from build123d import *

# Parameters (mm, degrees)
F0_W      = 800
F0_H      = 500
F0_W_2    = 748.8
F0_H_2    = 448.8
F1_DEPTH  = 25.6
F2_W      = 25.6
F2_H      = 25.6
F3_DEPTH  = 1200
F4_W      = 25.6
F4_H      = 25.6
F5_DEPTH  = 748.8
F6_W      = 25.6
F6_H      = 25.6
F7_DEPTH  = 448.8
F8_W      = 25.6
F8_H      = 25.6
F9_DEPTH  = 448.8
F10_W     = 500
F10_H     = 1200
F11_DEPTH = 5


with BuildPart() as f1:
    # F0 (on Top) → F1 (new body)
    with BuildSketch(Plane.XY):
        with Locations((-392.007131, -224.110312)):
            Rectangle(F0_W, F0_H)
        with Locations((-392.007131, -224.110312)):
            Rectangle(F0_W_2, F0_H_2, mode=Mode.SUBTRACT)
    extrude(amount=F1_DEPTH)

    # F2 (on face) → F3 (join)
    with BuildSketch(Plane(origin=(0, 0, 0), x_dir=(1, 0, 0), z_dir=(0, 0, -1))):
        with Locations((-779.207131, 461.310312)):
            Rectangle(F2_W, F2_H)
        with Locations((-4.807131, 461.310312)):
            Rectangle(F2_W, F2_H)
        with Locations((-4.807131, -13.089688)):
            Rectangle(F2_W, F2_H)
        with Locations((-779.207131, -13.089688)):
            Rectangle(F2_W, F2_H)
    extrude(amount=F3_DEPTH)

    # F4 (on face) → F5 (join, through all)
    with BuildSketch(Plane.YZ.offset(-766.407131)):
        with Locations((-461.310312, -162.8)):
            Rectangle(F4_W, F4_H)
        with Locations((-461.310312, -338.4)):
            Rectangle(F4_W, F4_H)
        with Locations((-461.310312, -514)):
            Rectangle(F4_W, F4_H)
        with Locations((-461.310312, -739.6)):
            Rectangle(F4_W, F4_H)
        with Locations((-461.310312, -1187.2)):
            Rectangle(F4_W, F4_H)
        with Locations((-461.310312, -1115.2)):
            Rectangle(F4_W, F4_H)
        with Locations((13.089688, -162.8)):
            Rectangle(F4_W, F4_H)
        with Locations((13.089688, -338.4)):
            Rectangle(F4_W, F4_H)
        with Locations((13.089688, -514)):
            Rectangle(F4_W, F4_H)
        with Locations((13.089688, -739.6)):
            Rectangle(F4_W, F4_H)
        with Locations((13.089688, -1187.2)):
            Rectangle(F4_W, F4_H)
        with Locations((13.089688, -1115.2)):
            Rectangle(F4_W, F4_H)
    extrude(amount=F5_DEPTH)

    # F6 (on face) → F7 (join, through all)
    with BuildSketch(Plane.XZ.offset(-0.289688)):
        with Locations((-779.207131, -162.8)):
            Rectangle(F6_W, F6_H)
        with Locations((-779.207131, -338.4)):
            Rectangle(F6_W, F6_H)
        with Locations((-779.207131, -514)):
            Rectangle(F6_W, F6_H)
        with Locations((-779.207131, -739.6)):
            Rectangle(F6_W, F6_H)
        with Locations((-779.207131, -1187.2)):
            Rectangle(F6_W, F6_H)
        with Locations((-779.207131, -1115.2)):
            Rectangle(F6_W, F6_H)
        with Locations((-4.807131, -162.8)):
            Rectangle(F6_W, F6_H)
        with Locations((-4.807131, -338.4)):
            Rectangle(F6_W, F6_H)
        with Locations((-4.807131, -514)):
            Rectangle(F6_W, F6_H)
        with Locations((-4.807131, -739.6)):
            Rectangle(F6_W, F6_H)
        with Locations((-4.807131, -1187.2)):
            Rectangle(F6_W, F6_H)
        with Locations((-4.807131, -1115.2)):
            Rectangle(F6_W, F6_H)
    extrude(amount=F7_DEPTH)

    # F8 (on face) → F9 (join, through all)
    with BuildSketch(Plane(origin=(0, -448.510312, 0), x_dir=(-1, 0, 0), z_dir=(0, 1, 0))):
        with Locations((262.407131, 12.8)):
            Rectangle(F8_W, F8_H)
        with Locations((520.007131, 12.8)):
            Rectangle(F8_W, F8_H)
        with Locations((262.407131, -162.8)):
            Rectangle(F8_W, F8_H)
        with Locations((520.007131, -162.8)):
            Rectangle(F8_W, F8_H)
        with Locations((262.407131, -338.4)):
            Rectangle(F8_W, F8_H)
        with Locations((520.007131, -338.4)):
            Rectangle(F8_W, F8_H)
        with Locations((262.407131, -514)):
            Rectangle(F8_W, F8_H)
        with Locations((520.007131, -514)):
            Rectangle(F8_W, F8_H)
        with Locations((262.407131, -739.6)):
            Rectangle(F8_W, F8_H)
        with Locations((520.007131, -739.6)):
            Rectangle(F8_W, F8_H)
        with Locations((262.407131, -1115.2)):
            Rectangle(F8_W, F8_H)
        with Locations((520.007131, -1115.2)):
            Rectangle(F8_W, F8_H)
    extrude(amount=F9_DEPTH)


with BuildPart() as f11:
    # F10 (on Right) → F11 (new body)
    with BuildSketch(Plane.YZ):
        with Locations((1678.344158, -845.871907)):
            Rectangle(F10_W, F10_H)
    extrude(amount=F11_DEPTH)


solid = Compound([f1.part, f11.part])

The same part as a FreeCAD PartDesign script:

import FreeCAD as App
import Part
import Sketcher
from FreeCAD import Vector
Q = App.Units.Quantity


def add_polygon(sketch, points):
    """Adds a closed chain of lines whose ends are joined by coincident constraints."""
    first, n = sketch.GeometryCount, len(points)
    for a, b in zip(points, points[1:] + points[:1]):
        sketch.addGeometry(Part.LineSegment(App.Vector(*a, 0), App.Vector(*b, 0)), False)
    for i in range(n):
        sketch.addConstraint(Sketcher.Constraint("Coincident", first + i, 2, first + (i + 1) % n, 1))

doc = App.newDocument("Part")
body = doc.addObject("PartDesign::Body", "Body")

# Sketch on XY plane
sketch1 = body.newObject("Sketcher::SketchObject", "Sketch")
sketch1.AttachmentSupport = (doc.getObject("XY_Plane"), [""])
sketch1.MapMode = "FlatFace"
add_polygon(sketch1, [(-792, 26), (-792, -474), (8, -474), (8, 26)])  # lines 0-3
add_polygon(sketch1, [(-18, -449), (-766, -449), (-766, 0), (-18, 0)])  # lines 4-7
sketch1.addConstraint(Sketcher.Constraint("Vertical", 0))
sketch1.addConstraint(Sketcher.Constraint("Horizontal", 1))
sketch1.addConstraint(Sketcher.Constraint("Vertical", 2))
sketch1.addConstraint(Sketcher.Constraint("Horizontal", 3))
sketch1.addConstraint(Sketcher.Constraint("Horizontal", 4))
sketch1.addConstraint(Sketcher.Constraint("Vertical", 5))
sketch1.addConstraint(Sketcher.Constraint("Horizontal", 6))
sketch1.addConstraint(Sketcher.Constraint("Vertical", 7))
sketch1.addConstraint(Sketcher.Constraint("DistanceX", 1, 1, 1, 2, Q("800 mm")))
sketch1.addConstraint(Sketcher.Constraint("DistanceY", 0, 2, 0, 1, Q("500 mm")))
sketch1.addConstraint(Sketcher.Constraint("DistanceX", 4, 2, 4, 1, Q("748.8 mm")))
sketch1.addConstraint(Sketcher.Constraint("DistanceY", 5, 1, 5, 2, Q("448.8 mm")))
sketch1.addConstraint(Sketcher.Constraint("DistanceX", 0, 2, 4, 2, Q("25.6 mm")))
sketch1.addConstraint(Sketcher.Constraint("DistanceY", 0, 2, 4, 2, Q("25.6 mm")))
sketch1.addConstraint(Sketcher.Constraint("DistanceX", 0, 2, -1, 1, Q("792.007131 mm")))
sketch1.addConstraint(Sketcher.Constraint("DistanceY", 0, 2, -1, 1, Q("474.110312 mm")))
pad1 = body.newObject("PartDesign::Pad", "Pad")
pad1.Profile = sketch1
pad1.Length = 25.6

# Sketch on XY plane
sketch2 = body.newObject("Sketcher::SketchObject", "Sketch001")
sketch2.AttachmentSupport = (doc.getObject("XY_Plane"), [""])
sketch2.MapMode = "FlatFace"
add_polygon(sketch2, [(-792, -474), (-792, -449), (-766, -449), (-766, -474)])  # lines 0-3
add_polygon(sketch2, [(-18, -474), (-18, -449), (8, -449), (8, -474)])  # lines 4-7
add_polygon(sketch2, [(-18, 0), (-18, 26), (8, 26), (8, 0)])  # lines 8-11
add_polygon(sketch2, [(-792, 0), (-792, 26), (-766, 26), (-766, 0)])  # lines 12-15
sketch2.addConstraint(Sketcher.Constraint("Vertical", 0))
sketch2.addConstraint(Sketcher.Constraint("Horizontal", 1))
sketch2.addConstraint(Sketcher.Constraint("Vertical", 2))
sketch2.addConstraint(Sketcher.Constraint("Horizontal", 3))
sketch2.addConstraint(Sketcher.Constraint("Vertical", 4))
sketch2.addConstraint(Sketcher.Constraint("Horizontal", 5))
sketch2.addConstraint(Sketcher.Constraint("Vertical", 6))
sketch2.addConstraint(Sketcher.Constraint("Horizontal", 7))
sketch2.addConstraint(Sketcher.Constraint("Vertical", 8))
sketch2.addConstraint(Sketcher.Constraint("Horizontal", 9))
sketch2.addConstraint(Sketcher.Constraint("Vertical", 10))
sketch2.addConstraint(Sketcher.Constraint("Horizontal", 11))
sketch2.addConstraint(Sketcher.Constraint("Vertical", 12))
sketch2.addConstraint(Sketcher.Constraint("Horizontal", 13))
sketch2.addConstraint(Sketcher.Constraint("Vertical", 14))
sketch2.addConstraint(Sketcher.Constraint("Horizontal", 15))
sketch2.addConstraint(Sketcher.Constraint("Horizontal", 1, 2, 4, 2))
sketch2.addConstraint(Sketcher.Constraint("Horizontal", 3, 2, 6, 2))
sketch2.addConstraint(Sketcher.Constraint("Horizontal", 9, 2, 12, 2))
sketch2.addConstraint(Sketcher.Constraint("Horizontal", 11, 2, 14, 2))
sketch2.addConstraint(Sketcher.Constraint("Vertical", 7, 2, 8, 2))
sketch2.addConstraint(Sketcher.Constraint("Vertical", 6, 2, 9, 2))
sketch2.addConstraint(Sketcher.Constraint("Vertical", 3, 2, 12, 2))
sketch2.addConstraint(Sketcher.Constraint("Vertical", 2, 2, 13, 2))
sketch2.addConstraint(Sketcher.Constraint("Equal", 3, 5))
sketch2.addConstraint(Sketcher.Constraint("Equal", 15, 0))
sketch2.addConstraint(Sketcher.Constraint("Equal", 6, 8))
sketch2.addConstraint(Sketcher.Constraint("DistanceX", 1, 1, 1, 2, Q("25.6 mm")))
sketch2.addConstraint(Sketcher.Constraint("DistanceX", 0, 2, 5, 2, Q("800 mm")))
sketch2.addConstraint(Sketcher.Constraint("DistanceY", 7, 2, 8, 2, Q("500 mm")))
sketch2.addConstraint(Sketcher.Constraint("DistanceX", 0, 2, -1, 1, Q("792.007131 mm")))
sketch2.addConstraint(Sketcher.Constraint("DistanceY", 0, 2, -1, 1, Q("448.510312 mm")))
pad2 = body.newObject("PartDesign::Pad", "Pad001")
pad2.Profile = sketch2
pad2.Length = 1200
pad2.Reversed = True

# Sketch on YZ plane
sketch3 = body.newObject("Sketcher::SketchObject", "Sketch002")
sketch3.AttachmentSupport = (doc.getObject("YZ_Plane"), [""])
sketch3.MapMode = "FlatFace"
sketch3.AttachmentOffset = App.Placement(Vector(0, 0, -766.407131), App.Rotation())
add_polygon(sketch3, [(-474, -150), (-474, -176), (-449, -176), (-449, -150)])  # lines 0-3
add_polygon(sketch3, [(-474, -326), (-474, -351), (-449, -351), (-449, -326)])  # lines 4-7
add_polygon(sketch3, [(-474, -501), (-474, -527), (-449, -527), (-449, -501)])  # lines 8-11
add_polygon(sketch3, [(-474, -727), (-474, -752), (-449, -752), (-449, -727)])  # lines 12-15
add_polygon(sketch3, [(-474, -1174), (-474, -1200), (-449, -1200), (-449, -1174)])  # lines 16-19
add_polygon(sketch3, [(-474, -1102), (-474, -1128), (-449, -1128), (-449, -1102)])  # lines 20-23
add_polygon(sketch3, [(0, -150), (0, -176), (26, -176), (26, -150)])  # lines 24-27
add_polygon(sketch3, [(0, -326), (0, -351), (26, -351), (26, -326)])  # lines 28-31
add_polygon(sketch3, [(0, -501), (0, -527), (26, -527), (26, -501)])  # lines 32-35
add_polygon(sketch3, [(0, -727), (0, -752), (26, -752), (26, -727)])  # lines 36-39
add_polygon(sketch3, [(0, -1174), (0, -1200), (26, -1200), (26, -1174)])  # lines 40-43
add_polygon(sketch3, [(0, -1102), (0, -1128), (26, -1128), (26, -1102)])  # lines 44-47
sketch3.addConstraint(Sketcher.Constraint("Vertical", 0))
sketch3.addConstraint(Sketcher.Constraint("Horizontal", 1))
sketch3.addConstraint(Sketcher.Constraint("Vertical", 2))
sketch3.addConstraint(Sketcher.Constraint("Horizontal", 3))
sketch3.addConstraint(Sketcher.Constraint("Vertical", 4))
sketch3.addConstraint(Sketcher.Constraint("Horizontal", 5))
sketch3.addConstraint(Sketcher.Constraint("Vertical", 6))
sketch3.addConstraint(Sketcher.Constraint("Horizontal", 7))
sketch3.addConstraint(Sketcher.Constraint("Vertical", 8))
sketch3.addConstraint(Sketcher.Constraint("Horizontal", 9))
sketch3.addConstraint(Sketcher.Constraint("Vertical", 10))
sketch3.addConstraint(Sketcher.Constraint("Horizontal", 11))
sketch3.addConstraint(Sketcher.Constraint("Vertical", 12))
sketch3.addConstraint(Sketcher.Constraint("Horizontal", 13))
sketch3.addConstraint(Sketcher.Constraint("Vertical", 14))
sketch3.addConstraint(Sketcher.Constraint("Horizontal", 15))
sketch3.addConstraint(Sketcher.Constraint("Vertical", 16))
sketch3.addConstraint(Sketcher.Constraint("Horizontal", 17))
sketch3.addConstraint(Sketcher.Constraint("Vertical", 18))
sketch3.addConstraint(Sketcher.Constraint("Horizontal", 19))
sketch3.addConstraint(Sketcher.Constraint("Vertical", 20))
sketch3.addConstraint(Sketcher.Constraint("Horizontal", 21))
sketch3.addConstraint(Sketcher.Constraint("Vertical", 22))
sketch3.addConstraint(Sketcher.Constraint("Horizontal", 23))
sketch3.addConstraint(Sketcher.Constraint("Vertical", 24))
sketch3.addConstraint(Sketcher.Constraint("Horizontal", 25))
sketch3.addConstraint(Sketcher.Constraint("Vertical", 26))
sketch3.addConstraint(Sketcher.Constraint("Horizontal", 27))
sketch3.addConstraint(Sketcher.Constraint("Vertical", 28))
sketch3.addConstraint(Sketcher.Constraint("Horizontal", 29))
sketch3.addConstraint(Sketcher.Constraint("Vertical", 30))
sketch3.addConstraint(Sketcher.Constraint("Horizontal", 31))
sketch3.addConstraint(Sketcher.Constraint("Vertical", 32))
sketch3.addConstraint(Sketcher.Constraint("Horizontal", 33))
sketch3.addConstraint(Sketcher.Constraint("Vertical", 34))
sketch3.addConstraint(Sketcher.Constraint("Horizontal", 35))
sketch3.addConstraint(Sketcher.Constraint("Vertical", 36))
sketch3.addConstraint(Sketcher.Constraint("Horizontal", 37))
sketch3.addConstraint(Sketcher.Constraint("Vertical", 38))
sketch3.addConstraint(Sketcher.Constraint("Horizontal", 39))
sketch3.addConstraint(Sketcher.Constraint("Vertical", 40))
sketch3.addConstraint(Sketcher.Constraint("Horizontal", 41))
sketch3.addConstraint(Sketcher.Constraint("Vertical", 42))
sketch3.addConstraint(Sketcher.Constraint("Horizontal", 43))
sketch3.addConstraint(Sketcher.Constraint("Vertical", 44))
sketch3.addConstraint(Sketcher.Constraint("Horizontal", 45))
sketch3.addConstraint(Sketcher.Constraint("Vertical", 46))
sketch3.addConstraint(Sketcher.Constraint("Horizontal", 47))
sketch3.addConstraint(Sketcher.Constraint("Horizontal", 1, 2, 24, 2))
sketch3.addConstraint(Sketcher.Constraint("Horizontal", 3, 2, 26, 2))
sketch3.addConstraint(Sketcher.Constraint("Horizontal", 5, 2, 28, 2))
sketch3.addConstraint(Sketcher.Constraint("Horizontal", 7, 2, 30, 2))
sketch3.addConstraint(Sketcher.Constraint("Horizontal", 9, 2, 32, 2))
sketch3.addConstraint(Sketcher.Constraint("Horizontal", 11, 2, 34, 2))
sketch3.addConstraint(Sketcher.Constraint("Horizontal", 13, 2, 36, 2))
sketch3.addConstraint(Sketcher.Constraint("Horizontal", 15, 2, 38, 2))
sketch3.addConstraint(Sketcher.Constraint("Horizontal", 17, 2, 40, 2))
sketch3.addConstraint(Sketcher.Constraint("Horizontal", 19, 2, 42, 2))
sketch3.addConstraint(Sketcher.Constraint("Horizontal", 21, 2, 44, 2))
sketch3.addConstraint(Sketcher.Constraint("Horizontal", 23, 2, 46, 2))
sketch3.addConstraint(Sketcher.Constraint("Vertical", 3, 2, 4, 2))
sketch3.addConstraint(Sketcher.Constraint("Vertical", 2, 2, 5, 2))
sketch3.addConstraint(Sketcher.Constraint("Vertical", 7, 2, 8, 2))
sketch3.addConstraint(Sketcher.Constraint("Vertical", 6, 2, 9, 2))
sketch3.addConstraint(Sketcher.Constraint("Vertical", 11, 2, 12, 2))
sketch3.addConstraint(Sketcher.Constraint("Vertical", 10, 2, 13, 2))
sketch3.addConstraint(Sketcher.Constraint("Vertical", 15, 2, 16, 2))
sketch3.addConstraint(Sketcher.Constraint("Vertical", 14, 2, 17, 2))
sketch3.addConstraint(Sketcher.Constraint("Vertical", 19, 2, 20, 2))
sketch3.addConstraint(Sketcher.Constraint("Vertical", 18, 2, 21, 2))
sketch3.addConstraint(Sketcher.Constraint("Vertical", 27, 2, 28, 2))
sketch3.addConstraint(Sketcher.Constraint("Vertical", 26, 2, 29, 2))
sketch3.addConstraint(Sketcher.Constraint("Vertical", 31, 2, 32, 2))
sketch3.addConstraint(Sketcher.Constraint("Vertical", 30, 2, 33, 2))
sketch3.addConstraint(Sketcher.Constraint("Vertical", 35, 2, 36, 2))
sketch3.addConstraint(Sketcher.Constraint("Vertical", 34, 2, 37, 2))
sketch3.addConstraint(Sketcher.Constraint("Vertical", 39, 2, 40, 2))
sketch3.addConstraint(Sketcher.Constraint("Vertical", 38, 2, 41, 2))
sketch3.addConstraint(Sketcher.Constraint("Vertical", 43, 2, 44, 2))
sketch3.addConstraint(Sketcher.Constraint("Vertical", 42, 2, 45, 2))
sketch3.addConstraint(Sketcher.Constraint("Equal", 23, 25))
sketch3.addConstraint(Sketcher.Constraint("Equal", 47, 0))
sketch3.addConstraint(Sketcher.Constraint("Equal", 2, 4))
sketch3.addConstraint(Sketcher.Constraint("Equal", 6, 8))
sketch3.addConstraint(Sketcher.Constraint("Equal", 10, 12))
sketch3.addConstraint(Sketcher.Constraint("Equal", 14, 16))
sketch3.addConstraint(Sketcher.Constraint("Equal", 18, 20))
sketch3.addConstraint(Sketcher.Constraint("DistanceX", 1, 1, 1, 2, Q("25.6 mm")))
sketch3.addConstraint(Sketcher.Constraint("DistanceY", 2, 2, -1, 1, Q("150 mm")))
sketch3.addConstraint(Sketcher.Constraint("DistanceY", 16, 2, -1, 1, Q("1200 mm")))
sketch3.addConstraint(Sketcher.Constraint("DistanceY", 20, 2, -1, 1, Q("1128 mm")))
sketch3.addConstraint(Sketcher.Constraint("DistanceY", 6, 2, 1, 2, Q("150 mm")))
sketch3.addConstraint(Sketcher.Constraint("DistanceY", 10, 2, 5, 2, Q("150 mm")))
sketch3.addConstraint(Sketcher.Constraint("DistanceY", 14, 2, 9, 2, Q("200 mm")))
sketch3.addConstraint(Sketcher.Constraint("DistanceX", 0, 2, 25, 2, Q("500 mm")))
sketch3.addConstraint(Sketcher.Constraint("DistanceX", 0, 2, -1, 1, Q("474.110312 mm")))
pad3 = body.newObject("PartDesign::Pad", "Pad002")
pad3.Profile = sketch3
pad3.Length = 748.8

# Sketch on XZ plane
sketch4 = body.newObject("Sketcher::SketchObject", "Sketch003")
sketch4.AttachmentSupport = (doc.getObject("XZ_Plane"), [""])
sketch4.MapMode = "FlatFace"
sketch4.AttachmentOffset = App.Placement(Vector(0, 0, -0.289688), App.Rotation())
add_polygon(sketch4, [(-792, -150), (-792, -176), (-766, -176), (-766, -150)])  # lines 0-3
add_polygon(sketch4, [(-792, -326), (-792, -351), (-766, -351), (-766, -326)])  # lines 4-7
add_polygon(sketch4, [(-792, -501), (-792, -527), (-766, -527), (-766, -501)])  # lines 8-11
add_polygon(sketch4, [(-792, -727), (-792, -752), (-766, -752), (-766, -727)])  # lines 12-15
add_polygon(sketch4, [(-792, -1174), (-792, -1200), (-766, -1200), (-766, -1174)])  # lines 16-19
add_polygon(sketch4, [(-792, -1102), (-792, -1128), (-766, -1128), (-766, -1102)])  # lines 20-23
add_polygon(sketch4, [(-18, -150), (-18, -176), (8, -176), (8, -150)])  # lines 24-27
add_polygon(sketch4, [(-18, -326), (-18, -351), (8, -351), (8, -326)])  # lines 28-31
add_polygon(sketch4, [(-18, -501), (-18, -527), (8, -527), (8, -501)])  # lines 32-35
add_polygon(sketch4, [(-18, -727), (-18, -752), (8, -752), (8, -727)])  # lines 36-39
add_polygon(sketch4, [(-18, -1174), (-18, -1200), (8, -1200), (8, -1174)])  # lines 40-43
add_polygon(sketch4, [(-18, -1102), (-18, -1128), (8, -1128), (8, -1102)])  # lines 44-47
sketch4.addConstraint(Sketcher.Constraint("Vertical", 0))
sketch4.addConstraint(Sketcher.Constraint("Horizontal", 1))
sketch4.addConstraint(Sketcher.Constraint("Vertical", 2))
sketch4.addConstraint(Sketcher.Constraint("Horizontal", 3))
sketch4.addConstraint(Sketcher.Constraint("Vertical", 4))
sketch4.addConstraint(Sketcher.Constraint("Horizontal", 5))
sketch4.addConstraint(Sketcher.Constraint("Vertical", 6))
sketch4.addConstraint(Sketcher.Constraint("Horizontal", 7))
sketch4.addConstraint(Sketcher.Constraint("Vertical", 8))
sketch4.addConstraint(Sketcher.Constraint("Horizontal", 9))
sketch4.addConstraint(Sketcher.Constraint("Vertical", 10))
sketch4.addConstraint(Sketcher.Constraint("Horizontal", 11))
sketch4.addConstraint(Sketcher.Constraint("Vertical", 12))
sketch4.addConstraint(Sketcher.Constraint("Horizontal", 13))
sketch4.addConstraint(Sketcher.Constraint("Vertical", 14))
sketch4.addConstraint(Sketcher.Constraint("Horizontal", 15))
sketch4.addConstraint(Sketcher.Constraint("Vertical", 16))
sketch4.addConstraint(Sketcher.Constraint("Horizontal", 17))
sketch4.addConstraint(Sketcher.Constraint("Vertical", 18))
sketch4.addConstraint(Sketcher.Constraint("Horizontal", 19))
sketch4.addConstraint(Sketcher.Constraint("Vertical", 20))
sketch4.addConstraint(Sketcher.Constraint("Horizontal", 21))
sketch4.addConstraint(Sketcher.Constraint("Vertical", 22))
sketch4.addConstraint(Sketcher.Constraint("Horizontal", 23))
sketch4.addConstraint(Sketcher.Constraint("Vertical", 24))
sketch4.addConstraint(Sketcher.Constraint("Horizontal", 25))
sketch4.addConstraint(Sketcher.Constraint("Vertical", 26))
sketch4.addConstraint(Sketcher.Constraint("Horizontal", 27))
sketch4.addConstraint(Sketcher.Constraint("Vertical", 28))
sketch4.addConstraint(Sketcher.Constraint("Horizontal", 29))
sketch4.addConstraint(Sketcher.Constraint("Vertical", 30))
sketch4.addConstraint(Sketcher.Constraint("Horizontal", 31))
sketch4.addConstraint(Sketcher.Constraint("Vertical", 32))
sketch4.addConstraint(Sketcher.Constraint("Horizontal", 33))
sketch4.addConstraint(Sketcher.Constraint("Vertical", 34))
sketch4.addConstraint(Sketcher.Constraint("Horizontal", 35))
sketch4.addConstraint(Sketcher.Constraint("Vertical", 36))
sketch4.addConstraint(Sketcher.Constraint("Horizontal", 37))
sketch4.addConstraint(Sketcher.Constraint("Vertical", 38))
sketch4.addConstraint(Sketcher.Constraint("Horizontal", 39))
sketch4.addConstraint(Sketcher.Constraint("Vertical", 40))
sketch4.addConstraint(Sketcher.Constraint("Horizontal", 41))
sketch4.addConstraint(Sketcher.Constraint("Vertical", 42))
sketch4.addConstraint(Sketcher.Constraint("Horizontal", 43))
sketch4.addConstraint(Sketcher.Constraint("Vertical", 44))
sketch4.addConstraint(Sketcher.Constraint("Horizontal", 45))
sketch4.addConstraint(Sketcher.Constraint("Vertical", 46))
sketch4.addConstraint(Sketcher.Constraint("Horizontal", 47))
sketch4.addConstraint(Sketcher.Constraint("Horizontal", 1, 2, 24, 2))
sketch4.addConstraint(Sketcher.Constraint("Horizontal", 3, 2, 26, 2))
sketch4.addConstraint(Sketcher.Constraint("Horizontal", 5, 2, 28, 2))
sketch4.addConstraint(Sketcher.Constraint("Horizontal", 7, 2, 30, 2))
sketch4.addConstraint(Sketcher.Constraint("Horizontal", 9, 2, 32, 2))
sketch4.addConstraint(Sketcher.Constraint("Horizontal", 11, 2, 34, 2))
sketch4.addConstraint(Sketcher.Constraint("Horizontal", 13, 2, 36, 2))
sketch4.addConstraint(Sketcher.Constraint("Horizontal", 15, 2, 38, 2))
sketch4.addConstraint(Sketcher.Constraint("Horizontal", 17, 2, 40, 2))
sketch4.addConstraint(Sketcher.Constraint("Horizontal", 19, 2, 42, 2))
sketch4.addConstraint(Sketcher.Constraint("Horizontal", 21, 2, 44, 2))
sketch4.addConstraint(Sketcher.Constraint("Horizontal", 23, 2, 46, 2))
sketch4.addConstraint(Sketcher.Constraint("Vertical", 3, 2, 4, 2))
sketch4.addConstraint(Sketcher.Constraint("Vertical", 2, 2, 5, 2))
sketch4.addConstraint(Sketcher.Constraint("Vertical", 7, 2, 8, 2))
sketch4.addConstraint(Sketcher.Constraint("Vertical", 6, 2, 9, 2))
sketch4.addConstraint(Sketcher.Constraint("Vertical", 11, 2, 12, 2))
sketch4.addConstraint(Sketcher.Constraint("Vertical", 10, 2, 13, 2))
sketch4.addConstraint(Sketcher.Constraint("Vertical", 15, 2, 16, 2))
sketch4.addConstraint(Sketcher.Constraint("Vertical", 14, 2, 17, 2))
sketch4.addConstraint(Sketcher.Constraint("Vertical", 19, 2, 20, 2))
sketch4.addConstraint(Sketcher.Constraint("Vertical", 18, 2, 21, 2))
sketch4.addConstraint(Sketcher.Constraint("Vertical", 27, 2, 28, 2))
sketch4.addConstraint(Sketcher.Constraint("Vertical", 26, 2, 29, 2))
sketch4.addConstraint(Sketcher.Constraint("Vertical", 31, 2, 32, 2))
sketch4.addConstraint(Sketcher.Constraint("Vertical", 30, 2, 33, 2))
sketch4.addConstraint(Sketcher.Constraint("Vertical", 35, 2, 36, 2))
sketch4.addConstraint(Sketcher.Constraint("Vertical", 34, 2, 37, 2))
sketch4.addConstraint(Sketcher.Constraint("Vertical", 39, 2, 40, 2))
sketch4.addConstraint(Sketcher.Constraint("Vertical", 38, 2, 41, 2))
sketch4.addConstraint(Sketcher.Constraint("Vertical", 43, 2, 44, 2))
sketch4.addConstraint(Sketcher.Constraint("Vertical", 42, 2, 45, 2))
sketch4.addConstraint(Sketcher.Constraint("Equal", 23, 25))
sketch4.addConstraint(Sketcher.Constraint("Equal", 47, 0))
sketch4.addConstraint(Sketcher.Constraint("Equal", 2, 4))
sketch4.addConstraint(Sketcher.Constraint("Equal", 6, 8))
sketch4.addConstraint(Sketcher.Constraint("Equal", 10, 12))
sketch4.addConstraint(Sketcher.Constraint("Equal", 14, 16))
sketch4.addConstraint(Sketcher.Constraint("Equal", 18, 20))
sketch4.addConstraint(Sketcher.Constraint("DistanceX", 1, 1, 1, 2, Q("25.6 mm")))
sketch4.addConstraint(Sketcher.Constraint("DistanceY", 2, 2, -1, 1, Q("150 mm")))
sketch4.addConstraint(Sketcher.Constraint("DistanceY", 16, 2, -1, 1, Q("1200 mm")))
sketch4.addConstraint(Sketcher.Constraint("DistanceY", 20, 2, -1, 1, Q("1128 mm")))
sketch4.addConstraint(Sketcher.Constraint("DistanceY", 6, 2, 1, 2, Q("150 mm")))
sketch4.addConstraint(Sketcher.Constraint("DistanceY", 10, 2, 5, 2, Q("150 mm")))
sketch4.addConstraint(Sketcher.Constraint("DistanceY", 14, 2, 9, 2, Q("200 mm")))
sketch4.addConstraint(Sketcher.Constraint("DistanceX", 1, 2, 24, 2, Q("748.8 mm")))
sketch4.addConstraint(Sketcher.Constraint("DistanceX", 0, 2, -1, 1, Q("792.007131 mm")))
pad4 = body.newObject("PartDesign::Pad", "Pad003")
pad4.Profile = sketch4
pad4.Length = 448.8

# Sketch on XZ plane
sketch5 = body.newObject("Sketcher::SketchObject", "Sketch004")
sketch5.AttachmentSupport = (doc.getObject("XZ_Plane"), [""])
sketch5.MapMode = "FlatFace"
sketch5.AttachmentOffset = App.Placement(Vector(0, 0, 448.510312), App.Rotation())
add_polygon(sketch5, [(-250, 26), (-250, 0), (-275, 0), (-275, 26)])  # lines 0-3
add_polygon(sketch5, [(-507, 26), (-507, 0), (-533, 0), (-533, 26)])  # lines 4-7
add_polygon(sketch5, [(-250, -150), (-250, -176), (-275, -176), (-275, -150)])  # lines 8-11
add_polygon(sketch5, [(-507, -150), (-507, -176), (-533, -176), (-533, -150)])  # lines 12-15
add_polygon(sketch5, [(-250, -326), (-250, -351), (-275, -351), (-275, -326)])  # lines 16-19
add_polygon(sketch5, [(-507, -326), (-507, -351), (-533, -351), (-533, -326)])  # lines 20-23
add_polygon(sketch5, [(-250, -501), (-250, -527), (-275, -527), (-275, -501)])  # lines 24-27
add_polygon(sketch5, [(-507, -501), (-507, -527), (-533, -527), (-533, -501)])  # lines 28-31
add_polygon(sketch5, [(-250, -727), (-250, -752), (-275, -752), (-275, -727)])  # lines 32-35
add_polygon(sketch5, [(-507, -727), (-507, -752), (-533, -752), (-533, -727)])  # lines 36-39
add_polygon(sketch5, [(-250, -1102), (-250, -1128), (-275, -1128), (-275, -1102)])  # lines 40-43
add_polygon(sketch5, [(-507, -1102), (-507, -1128), (-533, -1128), (-533, -1102)])  # lines 44-47
sketch5.addConstraint(Sketcher.Constraint("Vertical", 0))
sketch5.addConstraint(Sketcher.Constraint("Horizontal", 1))
sketch5.addConstraint(Sketcher.Constraint("Vertical", 2))
sketch5.addConstraint(Sketcher.Constraint("Horizontal", 3))
sketch5.addConstraint(Sketcher.Constraint("Vertical", 4))
sketch5.addConstraint(Sketcher.Constraint("Horizontal", 5))
sketch5.addConstraint(Sketcher.Constraint("Vertical", 6))
sketch5.addConstraint(Sketcher.Constraint("Horizontal", 7))
sketch5.addConstraint(Sketcher.Constraint("Vertical", 8))
sketch5.addConstraint(Sketcher.Constraint("Horizontal", 9))
sketch5.addConstraint(Sketcher.Constraint("Vertical", 10))
sketch5.addConstraint(Sketcher.Constraint("Horizontal", 11))
sketch5.addConstraint(Sketcher.Constraint("Vertical", 12))
sketch5.addConstraint(Sketcher.Constraint("Horizontal", 13))
sketch5.addConstraint(Sketcher.Constraint("Vertical", 14))
sketch5.addConstraint(Sketcher.Constraint("Horizontal", 15))
sketch5.addConstraint(Sketcher.Constraint("Vertical", 16))
sketch5.addConstraint(Sketcher.Constraint("Horizontal", 17))
sketch5.addConstraint(Sketcher.Constraint("Vertical", 18))
sketch5.addConstraint(Sketcher.Constraint("Horizontal", 19))
sketch5.addConstraint(Sketcher.Constraint("Vertical", 20))
sketch5.addConstraint(Sketcher.Constraint("Horizontal", 21))
sketch5.addConstraint(Sketcher.Constraint("Vertical", 22))
sketch5.addConstraint(Sketcher.Constraint("Horizontal", 23))
sketch5.addConstraint(Sketcher.Constraint("Vertical", 24))
sketch5.addConstraint(Sketcher.Constraint("Horizontal", 25))
sketch5.addConstraint(Sketcher.Constraint("Vertical", 26))
sketch5.addConstraint(Sketcher.Constraint("Horizontal", 27))
sketch5.addConstraint(Sketcher.Constraint("Vertical", 28))
sketch5.addConstraint(Sketcher.Constraint("Horizontal", 29))
sketch5.addConstraint(Sketcher.Constraint("Vertical", 30))
sketch5.addConstraint(Sketcher.Constraint("Horizontal", 31))
sketch5.addConstraint(Sketcher.Constraint("Vertical", 32))
sketch5.addConstraint(Sketcher.Constraint("Horizontal", 33))
sketch5.addConstraint(Sketcher.Constraint("Vertical", 34))
sketch5.addConstraint(Sketcher.Constraint("Horizontal", 35))
sketch5.addConstraint(Sketcher.Constraint("Vertical", 36))
sketch5.addConstraint(Sketcher.Constraint("Horizontal", 37))
sketch5.addConstraint(Sketcher.Constraint("Vertical", 38))
sketch5.addConstraint(Sketcher.Constraint("Horizontal", 39))
sketch5.addConstraint(Sketcher.Constraint("Vertical", 40))
sketch5.addConstraint(Sketcher.Constraint("Horizontal", 41))
sketch5.addConstraint(Sketcher.Constraint("Vertical", 42))
sketch5.addConstraint(Sketcher.Constraint("Horizontal", 43))
sketch5.addConstraint(Sketcher.Constraint("Vertical", 44))
sketch5.addConstraint(Sketcher.Constraint("Horizontal", 45))
sketch5.addConstraint(Sketcher.Constraint("Vertical", 46))
sketch5.addConstraint(Sketcher.Constraint("Horizontal", 47))
sketch5.addConstraint(Sketcher.Constraint("PointOnObject", 0, 2, -1))
sketch5.addConstraint(Sketcher.Constraint("PointOnObject", 4, 2, -1))
sketch5.addConstraint(Sketcher.Constraint("Horizontal", 3, 2, 6, 2))
sketch5.addConstraint(Sketcher.Constraint("Horizontal", 9, 2, 12, 2))
sketch5.addConstraint(Sketcher.Constraint("Horizontal", 11, 2, 14, 2))
sketch5.addConstraint(Sketcher.Constraint("Horizontal", 17, 2, 20, 2))
sketch5.addConstraint(Sketcher.Constraint("Horizontal", 19, 2, 22, 2))
sketch5.addConstraint(Sketcher.Constraint("Horizontal", 25, 2, 28, 2))
sketch5.addConstraint(Sketcher.Constraint("Horizontal", 27, 2, 30, 2))
sketch5.addConstraint(Sketcher.Constraint("Horizontal", 33, 2, 36, 2))
sketch5.addConstraint(Sketcher.Constraint("Horizontal", 35, 2, 38, 2))
sketch5.addConstraint(Sketcher.Constraint("Horizontal", 41, 2, 44, 2))
sketch5.addConstraint(Sketcher.Constraint("Horizontal", 43, 2, 46, 2))
sketch5.addConstraint(Sketcher.Constraint("Vertical", 3, 2, 8, 2))
sketch5.addConstraint(Sketcher.Constraint("Vertical", 2, 2, 9, 2))
sketch5.addConstraint(Sketcher.Constraint("Vertical", 7, 2, 12, 2))
sketch5.addConstraint(Sketcher.Constraint("Vertical", 6, 2, 13, 2))
sketch5.addConstraint(Sketcher.Constraint("Vertical", 11, 2, 16, 2))
sketch5.addConstraint(Sketcher.Constraint("Vertical", 10, 2, 17, 2))
sketch5.addConstraint(Sketcher.Constraint("Vertical", 15, 2, 20, 2))
sketch5.addConstraint(Sketcher.Constraint("Vertical", 14, 2, 21, 2))
sketch5.addConstraint(Sketcher.Constraint("Vertical", 19, 2, 24, 2))
sketch5.addConstraint(Sketcher.Constraint("Vertical", 18, 2, 25, 2))
sketch5.addConstraint(Sketcher.Constraint("Vertical", 23, 2, 28, 2))
sketch5.addConstraint(Sketcher.Constraint("Vertical", 22, 2, 29, 2))
sketch5.addConstraint(Sketcher.Constraint("Vertical", 27, 2, 32, 2))
sketch5.addConstraint(Sketcher.Constraint("Vertical", 26, 2, 33, 2))
sketch5.addConstraint(Sketcher.Constraint("Vertical", 31, 2, 36, 2))
sketch5.addConstraint(Sketcher.Constraint("Vertical", 30, 2, 37, 2))
sketch5.addConstraint(Sketcher.Constraint("Vertical", 35, 2, 40, 2))
sketch5.addConstraint(Sketcher.Constraint("Vertical", 34, 2, 41, 2))
sketch5.addConstraint(Sketcher.Constraint("Vertical", 39, 2, 44, 2))
sketch5.addConstraint(Sketcher.Constraint("Vertical", 38, 2, 45, 2))
sketch5.addConstraint(Sketcher.Constraint("Equal", 3, 5))
sketch5.addConstraint(Sketcher.Constraint("Equal", 47, 0))
sketch5.addConstraint(Sketcher.Constraint("Equal", 6, 8))
sketch5.addConstraint(Sketcher.Constraint("Equal", 14, 16))
sketch5.addConstraint(Sketcher.Constraint("Equal", 22, 24))
sketch5.addConstraint(Sketcher.Constraint("Equal", 30, 32))
sketch5.addConstraint(Sketcher.Constraint("Equal", 38, 40))
sketch5.addConstraint(Sketcher.Constraint("DistanceX", 1, 2, 1, 1, Q("25.6 mm")))
sketch5.addConstraint(Sketcher.Constraint("DistanceY", 10, 2, -1, 1, Q("150 mm")))
sketch5.addConstraint(Sketcher.Constraint("DistanceY", 40, 2, -1, 1, Q("1128 mm")))
sketch5.addConstraint(Sketcher.Constraint("DistanceX", 4, 2, 1, 2, Q("232 mm")))
sketch5.addConstraint(Sketcher.Constraint("DistanceY", 18, 2, 9, 2, Q("150 mm")))
sketch5.addConstraint(Sketcher.Constraint("DistanceY", 26, 2, 17, 2, Q("150 mm")))
sketch5.addConstraint(Sketcher.Constraint("DistanceY", 34, 2, 25, 2, Q("200 mm")))
sketch5.addConstraint(Sketcher.Constraint("DistanceX", 0, 2, -1, 1, Q("249.607131 mm")))
pad5 = body.newObject("PartDesign::Pad", "Pad004")
pad5.Profile = sketch5
pad5.Length = 448.8
pad5.Reversed = True
body2 = doc.addObject("PartDesign::Body", "Body001")

# Sketch on YZ plane
sketch6 = body2.newObject("Sketcher::SketchObject", "Sketch005")
sketch6.AttachmentSupport = (doc.getObject("YZ_Plane001"), [""])
sketch6.MapMode = "FlatFace"
add_polygon(sketch6, [(1428, -246), (1428, -1446), (1928, -1446), (1928, -246)])  # lines 0-3
sketch6.addConstraint(Sketcher.Constraint("Vertical", 0))
sketch6.addConstraint(Sketcher.Constraint("Horizontal", 1))
sketch6.addConstraint(Sketcher.Constraint("Vertical", 2))
sketch6.addConstraint(Sketcher.Constraint("Horizontal", 3))
sketch6.addConstraint(Sketcher.Constraint("DistanceX", 1, 1, 1, 2, Q("500 mm")))
sketch6.addConstraint(Sketcher.Constraint("DistanceY", 0, 2, 0, 1, Q("1200 mm")))
sketch6.addConstraint(Sketcher.Constraint("DistanceX", -1, 1, 0, 2, Q("1428.344158 mm")))
sketch6.addConstraint(Sketcher.Constraint("DistanceY", 0, 2, -1, 1, Q("1445.871907 mm")))
pad6 = body2.newObject("PartDesign::Pad", "Pad005")
pad6.Profile = sketch6
pad6.Length = 5

doc.recompute()
